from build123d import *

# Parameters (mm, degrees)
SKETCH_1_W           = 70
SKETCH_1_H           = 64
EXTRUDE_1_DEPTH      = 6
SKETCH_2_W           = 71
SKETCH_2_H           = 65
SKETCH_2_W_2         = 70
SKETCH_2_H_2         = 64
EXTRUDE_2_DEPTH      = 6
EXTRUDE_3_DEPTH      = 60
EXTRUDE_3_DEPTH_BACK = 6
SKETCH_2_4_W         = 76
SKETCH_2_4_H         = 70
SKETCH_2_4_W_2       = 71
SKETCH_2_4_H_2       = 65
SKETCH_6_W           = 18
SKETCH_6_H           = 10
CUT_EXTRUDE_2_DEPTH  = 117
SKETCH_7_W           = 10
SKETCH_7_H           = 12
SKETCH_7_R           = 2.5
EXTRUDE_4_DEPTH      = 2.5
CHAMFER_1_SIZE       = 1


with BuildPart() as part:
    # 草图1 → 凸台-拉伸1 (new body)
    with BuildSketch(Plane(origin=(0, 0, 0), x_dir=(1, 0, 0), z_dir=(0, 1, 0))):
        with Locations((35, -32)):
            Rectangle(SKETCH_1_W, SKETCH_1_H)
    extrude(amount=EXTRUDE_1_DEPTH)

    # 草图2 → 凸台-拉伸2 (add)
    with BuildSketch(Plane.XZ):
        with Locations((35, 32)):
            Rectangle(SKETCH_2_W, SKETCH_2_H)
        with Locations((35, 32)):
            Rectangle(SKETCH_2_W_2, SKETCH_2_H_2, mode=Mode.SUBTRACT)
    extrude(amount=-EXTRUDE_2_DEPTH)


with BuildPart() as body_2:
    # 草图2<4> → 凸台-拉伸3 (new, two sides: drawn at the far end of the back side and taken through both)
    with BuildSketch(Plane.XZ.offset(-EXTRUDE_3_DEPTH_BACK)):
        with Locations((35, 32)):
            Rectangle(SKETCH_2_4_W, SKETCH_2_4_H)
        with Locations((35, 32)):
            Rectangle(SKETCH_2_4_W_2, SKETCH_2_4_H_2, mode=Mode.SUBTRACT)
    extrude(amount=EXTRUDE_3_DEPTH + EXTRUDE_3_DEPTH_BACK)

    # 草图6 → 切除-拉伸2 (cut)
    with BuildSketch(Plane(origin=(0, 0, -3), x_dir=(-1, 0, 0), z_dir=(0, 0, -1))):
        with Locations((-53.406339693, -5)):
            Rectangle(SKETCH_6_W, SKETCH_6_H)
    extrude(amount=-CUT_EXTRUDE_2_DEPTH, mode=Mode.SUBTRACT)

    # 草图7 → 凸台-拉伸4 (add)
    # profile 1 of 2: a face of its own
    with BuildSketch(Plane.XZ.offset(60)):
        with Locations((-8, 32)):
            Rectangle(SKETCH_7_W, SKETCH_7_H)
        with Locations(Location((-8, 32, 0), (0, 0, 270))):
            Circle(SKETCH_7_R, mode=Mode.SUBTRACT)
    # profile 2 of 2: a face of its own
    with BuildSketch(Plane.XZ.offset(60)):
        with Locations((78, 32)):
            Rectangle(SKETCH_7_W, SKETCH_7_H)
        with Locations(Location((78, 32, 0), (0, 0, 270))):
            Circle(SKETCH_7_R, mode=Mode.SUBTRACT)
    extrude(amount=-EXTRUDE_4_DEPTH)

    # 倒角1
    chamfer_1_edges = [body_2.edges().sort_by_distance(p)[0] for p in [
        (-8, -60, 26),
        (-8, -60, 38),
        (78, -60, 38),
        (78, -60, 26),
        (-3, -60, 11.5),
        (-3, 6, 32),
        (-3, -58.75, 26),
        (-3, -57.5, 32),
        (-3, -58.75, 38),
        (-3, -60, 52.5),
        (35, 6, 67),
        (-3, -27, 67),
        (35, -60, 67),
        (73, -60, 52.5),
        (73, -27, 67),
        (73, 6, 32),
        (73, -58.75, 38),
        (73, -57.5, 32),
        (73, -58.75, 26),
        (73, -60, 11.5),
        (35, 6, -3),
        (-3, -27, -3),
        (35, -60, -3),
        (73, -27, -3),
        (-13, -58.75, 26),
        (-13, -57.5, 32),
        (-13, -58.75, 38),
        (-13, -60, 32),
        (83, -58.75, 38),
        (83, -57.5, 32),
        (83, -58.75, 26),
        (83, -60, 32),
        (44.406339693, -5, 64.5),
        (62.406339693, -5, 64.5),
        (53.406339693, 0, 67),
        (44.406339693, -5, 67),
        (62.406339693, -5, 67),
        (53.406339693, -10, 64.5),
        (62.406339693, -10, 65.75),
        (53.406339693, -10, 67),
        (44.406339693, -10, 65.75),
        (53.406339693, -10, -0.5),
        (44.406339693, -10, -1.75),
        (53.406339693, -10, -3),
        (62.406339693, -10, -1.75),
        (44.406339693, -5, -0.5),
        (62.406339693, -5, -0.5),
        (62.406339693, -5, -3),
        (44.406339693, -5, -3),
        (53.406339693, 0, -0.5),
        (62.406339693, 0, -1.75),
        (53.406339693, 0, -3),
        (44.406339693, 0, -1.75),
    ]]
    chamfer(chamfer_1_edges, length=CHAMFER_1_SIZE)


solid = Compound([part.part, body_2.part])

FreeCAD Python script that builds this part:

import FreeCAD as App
import Part
import Sketcher
from FreeCAD import Vector
Q = App.Units.Quantity


def edges_at(feature, points):
    """Names of the edges that pass closest to the given points."""
    edges = feature.Shape.Edges
    near = lambda p: min(range(len(edges)), key=lambda i: edges[i].distToShape(Part.Vertex(*p))[0])
    return sorted({f"Edge{near(p) + 1}" for p in points})

doc = App.newDocument("Part")
body = doc.addObject("PartDesign::Body", "Body")

sketch1 = doc.addObject("Sketcher::SketchObject", "Sketch")
body.addObject(sketch1)
sketch1.AttachmentSupport = (doc.XZ_Plane, [""])
sketch1.MapMode = "FlatFace"
sketch1.addGeometry(Part.LineSegment(Vector(0, 0, 0), Vector(0, 64, 0)), False)
sketch1.addGeometry(Part.LineSegment(Vector(0, 64, 0), Vector(70, 64, 0)), False)
sketch1.addGeometry(Part.LineSegment(Vector(70, 64, 0), Vector(70, 0, 0)), False)
sketch1.addGeometry(Part.LineSegment(Vector(70, 0, 0), Vector(0, 0, 0)), False)
sketch1.addConstraint(Sketcher.Constraint("Coincident", 0, 2, 1, 1))
sketch1.addConstraint(Sketcher.Constraint("Coincident", 1, 2, 2, 1))
sketch1.addConstraint(Sketcher.Constraint("Coincident", 2, 2, 3, 1))
sketch1.addConstraint(Sketcher.Constraint("Coincident", 3, 2, 0, 1))
sketch1.addConstraint(Sketcher.Constraint("Vertical", 0))
sketch1.addConstraint(Sketcher.Constraint("Horizontal", 1))
sketch1.addConstraint(Sketcher.Constraint("Vertical", 2))
sketch1.addConstraint(Sketcher.Constraint("Horizontal", 3))
sketch1.addConstraint(Sketcher.Constraint("Coincident", 3, 2, -1, 1))
sketch1.addConstraint(Sketcher.Constraint("DistanceX", 1, 1, 1, 2, Q("70 mm")))
sketch1.addConstraint(Sketcher.Constraint("DistanceY", 0, 1, 0, 2, Q("64 mm")))
pad1 = doc.addObject("PartDesign::Pad", "Pad")
body.addObject(pad1)
pad1.Profile = sketch1
pad1.Length = 6
pad1.Reversed = True

sketch2 = doc.addObject("Sketcher::SketchObject", "Sketch001")
body.addObject(sketch2)
sketch2.AttachmentSupport = (doc.XZ_Plane, [""])
sketch2.MapMode = "FlatFace"
sketch2.addGeometry(Part.LineSegment(Vector(0, 64, 0), Vector(0, 0, 0)), False)
sketch2.addGeometry(Part.LineSegment(Vector(0, 0, 0), Vector(70, 0, 0)), False)
sketch2.addGeometry(Part.LineSegment(Vector(70, 0, 0), Vector(70, 64, 0)), False)
sketch2.addGeometry(Part.LineSegment(Vector(70, 64, 0), Vector(0, 64, 0)), False)
sketch2.addGeometry(Part.LineSegment(Vector(70, 0, 0), Vector(0, 0, 0)), False)
sketch2.addGeometry(Part.LineSegment(Vector(0, 0, 0), Vector(0, 64, 0)), False)
sketch2.addGeometry(Part.LineSegment(Vector(0, 64, 0), Vector(70, 64, 0)), False)
sketch2.addGeometry(Part.LineSegment(Vector(70, 64, 0), Vector(70, 0, 0)), False)
sketch2.addConstraint(Sketcher.Constraint("Coincident", 0, 2, 1, 1))
sketch2.addConstraint(Sketcher.Constraint("Coincident", 1, 2, 2, 1))
sketch2.addConstraint(Sketcher.Constraint("Coincident", 2, 2, 3, 1))
sketch2.addConstraint(Sketcher.Constraint("Coincident", 3, 2, 0, 1))
sketch2.addConstraint(Sketcher.Constraint("Coincident", 4, 2, 5, 1))
sketch2.addConstraint(Sketcher.Constraint("Coincident", 5, 2, 6, 1))
sketch2.addConstraint(Sketcher.Constraint("Coincident", 6, 2, 7, 1))
sketch2.addConstraint(Sketcher.Constraint("Coincident", 7, 2, 4, 1))
sketch2.addConstraint(Sketcher.Constraint("Vertical", 0))
sketch2.addConstraint(Sketcher.Constraint("Horizontal", 1))
sketch2.addConstraint(Sketcher.Constraint("Vertical", 2))
sketch2.addConstraint(Sketcher.Constraint("Horizontal", 3))
sketch2.addConstraint(Sketcher.Constraint("Horizontal", 4))
sketch2.addConstraint(Sketcher.Constraint("Vertical", 5))
sketch2.addConstraint(Sketcher.Constraint("Horizontal", 6))
sketch2.addConstraint(Sketcher.Constraint("Vertical", 7))
sketch2.addConstraint(Sketcher.Constraint("Coincident", 4, 2, -1, 1))
sketch2.addConstraint(Sketcher.Constraint("DistanceX", 1, 1, 1, 2, Q("71 mm")))
sketch2.addConstraint(Sketcher.Constraint("DistanceX", 4, 2, 4, 1, Q("70 mm")))
sketch2.addConstraint(Sketcher.Constraint("DistanceY", 0, 2, 0, 1, Q("65 mm")))
sketch2.addConstraint(Sketcher.Constraint("DistanceY", 5, 1, 5, 2, Q("64 mm")))
sketch2.addConstraint(Sketcher.Constraint("DistanceX", 0, 2, -1, 1, Q("0.5 mm")))
sketch2.addConstraint(Sketcher.Constraint("DistanceY", 0, 2, -1, 1, Q("0.5 mm")))
pad2 = doc.addObject("PartDesign::Pad", "Pad001")
body.addObject(pad2)
pad2.Profile = sketch2
pad2.Length = 6
pad2.Reversed = True
body2 = doc.addObject("PartDesign::Body", "Body001")

sketch3 = doc.addObject("Sketcher::SketchObject", "Sketch002")
body2.addObject(sketch3)
sketch3.AttachmentSupport = (doc.getObject("XZ_Plane001"), [""])
sketch3.MapMode = "FlatFace"
sketch3.addGeometry(Part.LineSegment(Vector(-3, 67, 0), Vector(-3, -3, 0)), False)
sketch3.addGeometry(Part.LineSegment(Vector(-3, -3, 0), Vector(73, -3, 0)), False)
sketch3.addGeometry(Part.LineSegment(Vector(73, -3, 0), Vector(73, 67, 0)), False)
sketch3.addGeometry(Part.LineSegment(Vector(73, 67, 0), Vector(-3, 67, 0)), False)
sketch3.addGeometry(Part.LineSegment(Vector(70, 0, 0), Vector(0, 0, 0)), False)
sketch3.addGeometry(Part.LineSegment(Vector(0, 0, 0), Vector(0, 64, 0)), False)
sketch3.addGeometry(Part.LineSegment(Vector(0, 64, 0), Vector(70, 64, 0)), False)
sketch3.addGeometry(Part.LineSegment(Vector(70, 64, 0), Vector(70, 0, 0)), False)
sketch3.addConstraint(Sketcher.Constraint("Coincident", 0, 2, 1, 1))
sketch3.addConstraint(Sketcher.Constraint("Coincident", 1, 2, 2, 1))
sketch3.addConstraint(Sketcher.Constraint("Coincident", 2, 2, 3, 1))
sketch3.addConstraint(Sketcher.Constraint("Coincident", 3, 2, 0, 1))
sketch3.addConstraint(Sketcher.Constraint("Coincident", 4, 2, 5, 1))
sketch3.addConstraint(Sketcher.Constraint("Coincident", 5, 2, 6, 1))
sketch3.addConstraint(Sketcher.Constraint("Coincident", 6, 2, 7, 1))
sketch3.addConstraint(Sketcher.Constraint("Coincident", 7, 2, 4, 1))
sketch3.addConstraint(Sketcher.Constraint("Vertical", 0))
sketch3.addConstraint(Sketcher.Constraint("Horizontal", 1))
sketch3.addConstraint(Sketcher.Constraint("Vertical", 2))
sketch3.addConstraint(Sketcher.Constraint("Horizontal", 3))
sketch3.addConstraint(Sketcher.Constraint("Horizontal", 4))
sketch3.addConstraint(Sketcher.Constraint("Vertical", 5))
sketch3.addConstraint(Sketcher.Constraint("Horizontal", 6))
sketch3.addConstraint(Sketcher.Constraint("Vertical", 7))
sketch3.addConstraint(Sketcher.Constraint("DistanceX", 1, 1, 1, 2, Q("76 mm")))
sketch3.addConstraint(Sketcher.Constraint("DistanceX", 4, 2, 4, 1, Q("71 mm")))
sketch3.addConstraint(Sketcher.Constraint("DistanceY", 0, 2, 0, 1, Q("70 mm")))
sketch3.addConstraint(Sketcher.Constraint("DistanceY", 5, 1, 5, 2, Q("65 mm")))
sketch3.addConstraint(Sketcher.Constraint("DistanceX", 0, 2, -1, 1, Q("3 mm")))
sketch3.addConstraint(Sketcher.Constraint("DistanceY", 0, 2, -1, 1, Q("3 mm")))
sketch3.addConstraint(Sketcher.Constraint("DistanceX", 4, 2, -1, 1, Q("0.5 mm")))
sketch3.addConstraint(Sketcher.Constraint("DistanceY", 4, 2, -1, 1, Q("0.5 mm")))
pad3 = doc.addObject("PartDesign::Pad", "Pad002")
body2.addObject(pad3)
pad3.Profile = sketch3
pad3.Type = "TwoLengths"
pad3.Length = 60
pad3.Length2 = 6

sketch4 = doc.addObject("Sketcher::SketchObject", "Sketch003")
body2.addObject(sketch4)
sketch4.AttachmentSupport = (doc.getObject("XY_Plane001"), [""])
sketch4.MapMode = "FlatFace"
sketch4.AttachmentOffset = App.Placement(Vector(0, 0, -3), App.Rotation())
sketch4.addGeometry(Part.LineSegment(Vector(62, 0, 0), Vector(62, -10, 0)), False)
sketch4.addGeometry(Part.LineSegment(Vector(62, -10, 0), Vector(44, -10, 0)), False)
sketch4.addGeometry(Part.LineSegment(Vector(44, -10, 0), Vector(44, 0, 0)), False)
sketch4.addGeometry(Part.LineSegment(Vector(44, 0, 0), Vector(62, 0, 0)), False)
sketch4.addConstraint(Sketcher.Constraint("Coincident", 0, 2, 1, 1))
sketch4.addConstraint(Sketcher.Constraint("Coincident", 1, 2, 2, 1))
sketch4.addConstraint(Sketcher.Constraint("Coincident", 2, 2, 3, 1))
sketch4.addConstraint(Sketcher.Constraint("Coincident", 3, 2, 0, 1))
sketch4.addConstraint(Sketcher.Constraint("Vertical", 0))
sketch4.addConstraint(Sketcher.Constraint("Horizontal", 1))
sketch4.addConstraint(Sketcher.Constraint("Vertical", 2))
sketch4.addConstraint(Sketcher.Constraint("Horizontal", 3))
sketch4.addConstraint(Sketcher.Constraint("PointOnObject", 2, 2, -1))
sketch4.addConstraint(Sketcher.Constraint("DistanceX", 1, 2, 1, 1, Q("18 mm")))
sketch4.addConstraint(Sketcher.Constraint("DistanceY", 0, 2, 0, 1, Q("10 mm")))
sketch4.addConstraint(Sketcher.Constraint("DistanceX", -1, 1, 0, 2, Q("62.40634 mm")))
pocket1 = doc.addObject("PartDesign::Pocket", "Pocket")
body2.addObject(pocket1)
pocket1.Profile = sketch4
pocket1.Length = 117
pocket1.Reversed = True

sketch5 = doc.addObject("Sketcher::SketchObject", "Sketch004")
body2.addObject(sketch5)
sketch5.AttachmentSupport = (doc.getObject("XZ_Plane001"), [""])
sketch5.MapMode = "FlatFace"
sketch5.AttachmentOffset = App.Placement(Vector(0, 0, 60), App.Rotation())
sketch5.addGeometry(Part.LineSegment(Vector(-13, 38, 0), Vector(-13, 26, 0)), False)
sketch5.addGeometry(Part.LineSegment(Vector(-13, 26, 0), Vector(-3, 26, 0)), False)
sketch5.addGeometry(Part.LineSegment(Vector(-3, 26, 0), Vector(-3, 38, 0)), False)
sketch5.addGeometry(Part.LineSegment(Vector(-3, 38, 0), Vector(-13, 38, 0)), False)
sketch5.addGeometry(Part.Circle(Vector(-8, 32, 0), Vector(0, 0, 1), 2.5), False)
sketch5.addGeometry(Part.LineSegment(Vector(73, 38, 0), Vector(73, 26, 0)), False)
sketch5.addGeometry(Part.LineSegment(Vector(73, 26, 0), Vector(83, 26, 0)), False)
sketch5.addGeometry(Part.LineSegment(Vector(83, 26, 0), Vector(83, 38, 0)), False)
sketch5.addGeometry(Part.LineSegment(Vector(83, 38, 0), Vector(73, 38, 0)), False)
sketch5.addGeometry(Part.Circle(Vector(78, 32, 0), Vector(0, 0, 1), 2.5), False)
sketch5.addConstraint(Sketcher.Constraint("Coincident", 0, 2, 1, 1))
sketch5.addConstraint(Sketcher.Constraint("Coincident", 1, 2, 2, 1))
sketch5.addConstraint(Sketcher.Constraint("Coincident", 2, 2, 3, 1))
sketch5.addConstraint(Sketcher.Constraint("Coincident", 3, 2, 0, 1))
sketch5.addConstraint(Sketcher.Constraint("Coincident", 5, 2, 6, 1))
sketch5.addConstraint(Sketcher.Constraint("Coincident", 6, 2, 7, 1))
sketch5.addConstraint(Sketcher.Constraint("Coincident", 7, 2, 8, 1))
sketch5.addConstraint(Sketcher.Constraint("Coincident", 8, 2, 5, 1))
sketch5.addConstraint(Sketcher.Constraint("Vertical", 0))
sketch5.addConstraint(Sketcher.Constraint("Horizontal", 1))
sketch5.addConstraint(Sketcher.Constraint("Vertical", 2))
sketch5.addConstraint(Sketcher.Constraint("Horizontal", 3))
sketch5.addConstraint(Sketcher.Constraint("Vertical", 5))
sketch5.addConstraint(Sketcher.Constraint("Horizontal", 6))
sketch5.addConstraint(Sketcher.Constraint("Vertical", 7))
sketch5.addConstraint(Sketcher.Constraint("Horizontal", 8))
sketch5.addConstraint(Sketcher.Constraint("Equal", 4, 9))
sketch5.addConstraint(Sketcher.Constraint("Horizontal", 4, 3, 9, 3))
sketch5.addConstraint(Sketcher.Constraint("Horizontal", 1, 2, 5, 2))
sketch5.addConstraint(Sketcher.Constraint("Horizontal", 3, 2, 7, 2))
sketch5.addConstraint(Sketcher.Constraint("Equal", 3, 6))
sketch5.addConstraint(Sketcher.Constraint("Diameter", 4, Q("5 mm")))
sketch5.addConstraint(Sketcher.Constraint("DistanceX", 1, 1, 1, 2, Q("10 mm")))
sketch5.addConstraint(Sketcher.Constraint("DistanceY", 0, 2, 0, 1, Q("12 mm")))
sketch5.addConstraint(Sketcher.Constraint("DistanceX", 4, 3, -1, 1, Q("8 mm")))
sketch5.addConstraint(Sketcher.Constraint("DistanceY", -1, 1, 4, 3, Q("32 mm")))
sketch5.addConstraint(Sketcher.Constraint("DistanceX", -1, 1, 9, 3, Q("78 mm")))
sketch5.addConstraint(Sketcher.Constraint("DistanceX", 0, 2, -1, 1, Q("13 mm")))
sketch5.addConstraint(Sketcher.Constraint("DistanceY", -1, 1, 0, 2, Q("26 mm")))
sketch5.addConstraint(Sketcher.Constraint("DistanceX", -1, 1, 5, 2, Q("73 mm")))
pad4 = doc.addObject("PartDesign::Pad", "Pad003")
body2.addObject(pad4)
pad4.Profile = sketch5
pad4.Length = 2.5
pad4.Reversed = True
doc.recompute()

chamfer = doc.addObject("PartDesign::Chamfer", "Chamfer")
body2.addObject(chamfer)
chamfer.Base = (pad4, edges_at(pad4, [
    (-8, -60, 26),
    (-8, -60, 38),
    (78, -60, 38),
    (78, -60, 26),
    (-3, -60, 11.5),
    (-3, 6, 32),
    (-3, -58.75, 26),
    (-3, -57.5, 32),
    (-3, -58.75, 38),
    (-3, -60, 52.5),
    (35, 6, 67),
    (-3, -27, 67),
    (35, -60, 67),
    (73, -60, 52.5),
    (73, -27, 67),
    (73, 6, 32),
    (73, -58.75, 38),
    (73, -57.5, 32),
    (73, -58.75, 26),
    (73, -60, 11.5),
    (35, 6, -3),
    (-3, -27, -3),
    (35, -60, -3),
    (73, -27, -3),
    (-13, -58.75, 26),
    (-13, -57.5, 32),
    (-13, -58.75, 38),
    (-13, -60, 32),
    (83, -58.75, 38),
    (83, -57.5, 32),
    (83, -58.75, 26),
    (83, -60, 32),
    (44.406, -5, 64.5),
    (62.406, -5, 64.5),
    (53.406, 0, 67),
    (44.406, -5, 67),
    (62.406, -5, 67),
    (53.406, -10, 64.5),
    (62.406, -10, 65.75),
    (53.406, -10, 67),
    (44.406, -10, 65.75),
    (53.406, -10, -0.5),
    (44.406, -10, -1.75),
    (53.406, -10, -3),
    (62.406, -10, -1.75),
    (44.406, -5, -0.5),
    (62.406, -5, -0.5),
    (62.406, -5, -3),
    (44.406, -5, -3),
    (53.406, 0, -0.5),
    (62.406, 0, -1.75),
    (53.406, 0, -3),
    (44.406, 0, -1.75),
]))
chamfer.Size = 1

doc.recompute()
